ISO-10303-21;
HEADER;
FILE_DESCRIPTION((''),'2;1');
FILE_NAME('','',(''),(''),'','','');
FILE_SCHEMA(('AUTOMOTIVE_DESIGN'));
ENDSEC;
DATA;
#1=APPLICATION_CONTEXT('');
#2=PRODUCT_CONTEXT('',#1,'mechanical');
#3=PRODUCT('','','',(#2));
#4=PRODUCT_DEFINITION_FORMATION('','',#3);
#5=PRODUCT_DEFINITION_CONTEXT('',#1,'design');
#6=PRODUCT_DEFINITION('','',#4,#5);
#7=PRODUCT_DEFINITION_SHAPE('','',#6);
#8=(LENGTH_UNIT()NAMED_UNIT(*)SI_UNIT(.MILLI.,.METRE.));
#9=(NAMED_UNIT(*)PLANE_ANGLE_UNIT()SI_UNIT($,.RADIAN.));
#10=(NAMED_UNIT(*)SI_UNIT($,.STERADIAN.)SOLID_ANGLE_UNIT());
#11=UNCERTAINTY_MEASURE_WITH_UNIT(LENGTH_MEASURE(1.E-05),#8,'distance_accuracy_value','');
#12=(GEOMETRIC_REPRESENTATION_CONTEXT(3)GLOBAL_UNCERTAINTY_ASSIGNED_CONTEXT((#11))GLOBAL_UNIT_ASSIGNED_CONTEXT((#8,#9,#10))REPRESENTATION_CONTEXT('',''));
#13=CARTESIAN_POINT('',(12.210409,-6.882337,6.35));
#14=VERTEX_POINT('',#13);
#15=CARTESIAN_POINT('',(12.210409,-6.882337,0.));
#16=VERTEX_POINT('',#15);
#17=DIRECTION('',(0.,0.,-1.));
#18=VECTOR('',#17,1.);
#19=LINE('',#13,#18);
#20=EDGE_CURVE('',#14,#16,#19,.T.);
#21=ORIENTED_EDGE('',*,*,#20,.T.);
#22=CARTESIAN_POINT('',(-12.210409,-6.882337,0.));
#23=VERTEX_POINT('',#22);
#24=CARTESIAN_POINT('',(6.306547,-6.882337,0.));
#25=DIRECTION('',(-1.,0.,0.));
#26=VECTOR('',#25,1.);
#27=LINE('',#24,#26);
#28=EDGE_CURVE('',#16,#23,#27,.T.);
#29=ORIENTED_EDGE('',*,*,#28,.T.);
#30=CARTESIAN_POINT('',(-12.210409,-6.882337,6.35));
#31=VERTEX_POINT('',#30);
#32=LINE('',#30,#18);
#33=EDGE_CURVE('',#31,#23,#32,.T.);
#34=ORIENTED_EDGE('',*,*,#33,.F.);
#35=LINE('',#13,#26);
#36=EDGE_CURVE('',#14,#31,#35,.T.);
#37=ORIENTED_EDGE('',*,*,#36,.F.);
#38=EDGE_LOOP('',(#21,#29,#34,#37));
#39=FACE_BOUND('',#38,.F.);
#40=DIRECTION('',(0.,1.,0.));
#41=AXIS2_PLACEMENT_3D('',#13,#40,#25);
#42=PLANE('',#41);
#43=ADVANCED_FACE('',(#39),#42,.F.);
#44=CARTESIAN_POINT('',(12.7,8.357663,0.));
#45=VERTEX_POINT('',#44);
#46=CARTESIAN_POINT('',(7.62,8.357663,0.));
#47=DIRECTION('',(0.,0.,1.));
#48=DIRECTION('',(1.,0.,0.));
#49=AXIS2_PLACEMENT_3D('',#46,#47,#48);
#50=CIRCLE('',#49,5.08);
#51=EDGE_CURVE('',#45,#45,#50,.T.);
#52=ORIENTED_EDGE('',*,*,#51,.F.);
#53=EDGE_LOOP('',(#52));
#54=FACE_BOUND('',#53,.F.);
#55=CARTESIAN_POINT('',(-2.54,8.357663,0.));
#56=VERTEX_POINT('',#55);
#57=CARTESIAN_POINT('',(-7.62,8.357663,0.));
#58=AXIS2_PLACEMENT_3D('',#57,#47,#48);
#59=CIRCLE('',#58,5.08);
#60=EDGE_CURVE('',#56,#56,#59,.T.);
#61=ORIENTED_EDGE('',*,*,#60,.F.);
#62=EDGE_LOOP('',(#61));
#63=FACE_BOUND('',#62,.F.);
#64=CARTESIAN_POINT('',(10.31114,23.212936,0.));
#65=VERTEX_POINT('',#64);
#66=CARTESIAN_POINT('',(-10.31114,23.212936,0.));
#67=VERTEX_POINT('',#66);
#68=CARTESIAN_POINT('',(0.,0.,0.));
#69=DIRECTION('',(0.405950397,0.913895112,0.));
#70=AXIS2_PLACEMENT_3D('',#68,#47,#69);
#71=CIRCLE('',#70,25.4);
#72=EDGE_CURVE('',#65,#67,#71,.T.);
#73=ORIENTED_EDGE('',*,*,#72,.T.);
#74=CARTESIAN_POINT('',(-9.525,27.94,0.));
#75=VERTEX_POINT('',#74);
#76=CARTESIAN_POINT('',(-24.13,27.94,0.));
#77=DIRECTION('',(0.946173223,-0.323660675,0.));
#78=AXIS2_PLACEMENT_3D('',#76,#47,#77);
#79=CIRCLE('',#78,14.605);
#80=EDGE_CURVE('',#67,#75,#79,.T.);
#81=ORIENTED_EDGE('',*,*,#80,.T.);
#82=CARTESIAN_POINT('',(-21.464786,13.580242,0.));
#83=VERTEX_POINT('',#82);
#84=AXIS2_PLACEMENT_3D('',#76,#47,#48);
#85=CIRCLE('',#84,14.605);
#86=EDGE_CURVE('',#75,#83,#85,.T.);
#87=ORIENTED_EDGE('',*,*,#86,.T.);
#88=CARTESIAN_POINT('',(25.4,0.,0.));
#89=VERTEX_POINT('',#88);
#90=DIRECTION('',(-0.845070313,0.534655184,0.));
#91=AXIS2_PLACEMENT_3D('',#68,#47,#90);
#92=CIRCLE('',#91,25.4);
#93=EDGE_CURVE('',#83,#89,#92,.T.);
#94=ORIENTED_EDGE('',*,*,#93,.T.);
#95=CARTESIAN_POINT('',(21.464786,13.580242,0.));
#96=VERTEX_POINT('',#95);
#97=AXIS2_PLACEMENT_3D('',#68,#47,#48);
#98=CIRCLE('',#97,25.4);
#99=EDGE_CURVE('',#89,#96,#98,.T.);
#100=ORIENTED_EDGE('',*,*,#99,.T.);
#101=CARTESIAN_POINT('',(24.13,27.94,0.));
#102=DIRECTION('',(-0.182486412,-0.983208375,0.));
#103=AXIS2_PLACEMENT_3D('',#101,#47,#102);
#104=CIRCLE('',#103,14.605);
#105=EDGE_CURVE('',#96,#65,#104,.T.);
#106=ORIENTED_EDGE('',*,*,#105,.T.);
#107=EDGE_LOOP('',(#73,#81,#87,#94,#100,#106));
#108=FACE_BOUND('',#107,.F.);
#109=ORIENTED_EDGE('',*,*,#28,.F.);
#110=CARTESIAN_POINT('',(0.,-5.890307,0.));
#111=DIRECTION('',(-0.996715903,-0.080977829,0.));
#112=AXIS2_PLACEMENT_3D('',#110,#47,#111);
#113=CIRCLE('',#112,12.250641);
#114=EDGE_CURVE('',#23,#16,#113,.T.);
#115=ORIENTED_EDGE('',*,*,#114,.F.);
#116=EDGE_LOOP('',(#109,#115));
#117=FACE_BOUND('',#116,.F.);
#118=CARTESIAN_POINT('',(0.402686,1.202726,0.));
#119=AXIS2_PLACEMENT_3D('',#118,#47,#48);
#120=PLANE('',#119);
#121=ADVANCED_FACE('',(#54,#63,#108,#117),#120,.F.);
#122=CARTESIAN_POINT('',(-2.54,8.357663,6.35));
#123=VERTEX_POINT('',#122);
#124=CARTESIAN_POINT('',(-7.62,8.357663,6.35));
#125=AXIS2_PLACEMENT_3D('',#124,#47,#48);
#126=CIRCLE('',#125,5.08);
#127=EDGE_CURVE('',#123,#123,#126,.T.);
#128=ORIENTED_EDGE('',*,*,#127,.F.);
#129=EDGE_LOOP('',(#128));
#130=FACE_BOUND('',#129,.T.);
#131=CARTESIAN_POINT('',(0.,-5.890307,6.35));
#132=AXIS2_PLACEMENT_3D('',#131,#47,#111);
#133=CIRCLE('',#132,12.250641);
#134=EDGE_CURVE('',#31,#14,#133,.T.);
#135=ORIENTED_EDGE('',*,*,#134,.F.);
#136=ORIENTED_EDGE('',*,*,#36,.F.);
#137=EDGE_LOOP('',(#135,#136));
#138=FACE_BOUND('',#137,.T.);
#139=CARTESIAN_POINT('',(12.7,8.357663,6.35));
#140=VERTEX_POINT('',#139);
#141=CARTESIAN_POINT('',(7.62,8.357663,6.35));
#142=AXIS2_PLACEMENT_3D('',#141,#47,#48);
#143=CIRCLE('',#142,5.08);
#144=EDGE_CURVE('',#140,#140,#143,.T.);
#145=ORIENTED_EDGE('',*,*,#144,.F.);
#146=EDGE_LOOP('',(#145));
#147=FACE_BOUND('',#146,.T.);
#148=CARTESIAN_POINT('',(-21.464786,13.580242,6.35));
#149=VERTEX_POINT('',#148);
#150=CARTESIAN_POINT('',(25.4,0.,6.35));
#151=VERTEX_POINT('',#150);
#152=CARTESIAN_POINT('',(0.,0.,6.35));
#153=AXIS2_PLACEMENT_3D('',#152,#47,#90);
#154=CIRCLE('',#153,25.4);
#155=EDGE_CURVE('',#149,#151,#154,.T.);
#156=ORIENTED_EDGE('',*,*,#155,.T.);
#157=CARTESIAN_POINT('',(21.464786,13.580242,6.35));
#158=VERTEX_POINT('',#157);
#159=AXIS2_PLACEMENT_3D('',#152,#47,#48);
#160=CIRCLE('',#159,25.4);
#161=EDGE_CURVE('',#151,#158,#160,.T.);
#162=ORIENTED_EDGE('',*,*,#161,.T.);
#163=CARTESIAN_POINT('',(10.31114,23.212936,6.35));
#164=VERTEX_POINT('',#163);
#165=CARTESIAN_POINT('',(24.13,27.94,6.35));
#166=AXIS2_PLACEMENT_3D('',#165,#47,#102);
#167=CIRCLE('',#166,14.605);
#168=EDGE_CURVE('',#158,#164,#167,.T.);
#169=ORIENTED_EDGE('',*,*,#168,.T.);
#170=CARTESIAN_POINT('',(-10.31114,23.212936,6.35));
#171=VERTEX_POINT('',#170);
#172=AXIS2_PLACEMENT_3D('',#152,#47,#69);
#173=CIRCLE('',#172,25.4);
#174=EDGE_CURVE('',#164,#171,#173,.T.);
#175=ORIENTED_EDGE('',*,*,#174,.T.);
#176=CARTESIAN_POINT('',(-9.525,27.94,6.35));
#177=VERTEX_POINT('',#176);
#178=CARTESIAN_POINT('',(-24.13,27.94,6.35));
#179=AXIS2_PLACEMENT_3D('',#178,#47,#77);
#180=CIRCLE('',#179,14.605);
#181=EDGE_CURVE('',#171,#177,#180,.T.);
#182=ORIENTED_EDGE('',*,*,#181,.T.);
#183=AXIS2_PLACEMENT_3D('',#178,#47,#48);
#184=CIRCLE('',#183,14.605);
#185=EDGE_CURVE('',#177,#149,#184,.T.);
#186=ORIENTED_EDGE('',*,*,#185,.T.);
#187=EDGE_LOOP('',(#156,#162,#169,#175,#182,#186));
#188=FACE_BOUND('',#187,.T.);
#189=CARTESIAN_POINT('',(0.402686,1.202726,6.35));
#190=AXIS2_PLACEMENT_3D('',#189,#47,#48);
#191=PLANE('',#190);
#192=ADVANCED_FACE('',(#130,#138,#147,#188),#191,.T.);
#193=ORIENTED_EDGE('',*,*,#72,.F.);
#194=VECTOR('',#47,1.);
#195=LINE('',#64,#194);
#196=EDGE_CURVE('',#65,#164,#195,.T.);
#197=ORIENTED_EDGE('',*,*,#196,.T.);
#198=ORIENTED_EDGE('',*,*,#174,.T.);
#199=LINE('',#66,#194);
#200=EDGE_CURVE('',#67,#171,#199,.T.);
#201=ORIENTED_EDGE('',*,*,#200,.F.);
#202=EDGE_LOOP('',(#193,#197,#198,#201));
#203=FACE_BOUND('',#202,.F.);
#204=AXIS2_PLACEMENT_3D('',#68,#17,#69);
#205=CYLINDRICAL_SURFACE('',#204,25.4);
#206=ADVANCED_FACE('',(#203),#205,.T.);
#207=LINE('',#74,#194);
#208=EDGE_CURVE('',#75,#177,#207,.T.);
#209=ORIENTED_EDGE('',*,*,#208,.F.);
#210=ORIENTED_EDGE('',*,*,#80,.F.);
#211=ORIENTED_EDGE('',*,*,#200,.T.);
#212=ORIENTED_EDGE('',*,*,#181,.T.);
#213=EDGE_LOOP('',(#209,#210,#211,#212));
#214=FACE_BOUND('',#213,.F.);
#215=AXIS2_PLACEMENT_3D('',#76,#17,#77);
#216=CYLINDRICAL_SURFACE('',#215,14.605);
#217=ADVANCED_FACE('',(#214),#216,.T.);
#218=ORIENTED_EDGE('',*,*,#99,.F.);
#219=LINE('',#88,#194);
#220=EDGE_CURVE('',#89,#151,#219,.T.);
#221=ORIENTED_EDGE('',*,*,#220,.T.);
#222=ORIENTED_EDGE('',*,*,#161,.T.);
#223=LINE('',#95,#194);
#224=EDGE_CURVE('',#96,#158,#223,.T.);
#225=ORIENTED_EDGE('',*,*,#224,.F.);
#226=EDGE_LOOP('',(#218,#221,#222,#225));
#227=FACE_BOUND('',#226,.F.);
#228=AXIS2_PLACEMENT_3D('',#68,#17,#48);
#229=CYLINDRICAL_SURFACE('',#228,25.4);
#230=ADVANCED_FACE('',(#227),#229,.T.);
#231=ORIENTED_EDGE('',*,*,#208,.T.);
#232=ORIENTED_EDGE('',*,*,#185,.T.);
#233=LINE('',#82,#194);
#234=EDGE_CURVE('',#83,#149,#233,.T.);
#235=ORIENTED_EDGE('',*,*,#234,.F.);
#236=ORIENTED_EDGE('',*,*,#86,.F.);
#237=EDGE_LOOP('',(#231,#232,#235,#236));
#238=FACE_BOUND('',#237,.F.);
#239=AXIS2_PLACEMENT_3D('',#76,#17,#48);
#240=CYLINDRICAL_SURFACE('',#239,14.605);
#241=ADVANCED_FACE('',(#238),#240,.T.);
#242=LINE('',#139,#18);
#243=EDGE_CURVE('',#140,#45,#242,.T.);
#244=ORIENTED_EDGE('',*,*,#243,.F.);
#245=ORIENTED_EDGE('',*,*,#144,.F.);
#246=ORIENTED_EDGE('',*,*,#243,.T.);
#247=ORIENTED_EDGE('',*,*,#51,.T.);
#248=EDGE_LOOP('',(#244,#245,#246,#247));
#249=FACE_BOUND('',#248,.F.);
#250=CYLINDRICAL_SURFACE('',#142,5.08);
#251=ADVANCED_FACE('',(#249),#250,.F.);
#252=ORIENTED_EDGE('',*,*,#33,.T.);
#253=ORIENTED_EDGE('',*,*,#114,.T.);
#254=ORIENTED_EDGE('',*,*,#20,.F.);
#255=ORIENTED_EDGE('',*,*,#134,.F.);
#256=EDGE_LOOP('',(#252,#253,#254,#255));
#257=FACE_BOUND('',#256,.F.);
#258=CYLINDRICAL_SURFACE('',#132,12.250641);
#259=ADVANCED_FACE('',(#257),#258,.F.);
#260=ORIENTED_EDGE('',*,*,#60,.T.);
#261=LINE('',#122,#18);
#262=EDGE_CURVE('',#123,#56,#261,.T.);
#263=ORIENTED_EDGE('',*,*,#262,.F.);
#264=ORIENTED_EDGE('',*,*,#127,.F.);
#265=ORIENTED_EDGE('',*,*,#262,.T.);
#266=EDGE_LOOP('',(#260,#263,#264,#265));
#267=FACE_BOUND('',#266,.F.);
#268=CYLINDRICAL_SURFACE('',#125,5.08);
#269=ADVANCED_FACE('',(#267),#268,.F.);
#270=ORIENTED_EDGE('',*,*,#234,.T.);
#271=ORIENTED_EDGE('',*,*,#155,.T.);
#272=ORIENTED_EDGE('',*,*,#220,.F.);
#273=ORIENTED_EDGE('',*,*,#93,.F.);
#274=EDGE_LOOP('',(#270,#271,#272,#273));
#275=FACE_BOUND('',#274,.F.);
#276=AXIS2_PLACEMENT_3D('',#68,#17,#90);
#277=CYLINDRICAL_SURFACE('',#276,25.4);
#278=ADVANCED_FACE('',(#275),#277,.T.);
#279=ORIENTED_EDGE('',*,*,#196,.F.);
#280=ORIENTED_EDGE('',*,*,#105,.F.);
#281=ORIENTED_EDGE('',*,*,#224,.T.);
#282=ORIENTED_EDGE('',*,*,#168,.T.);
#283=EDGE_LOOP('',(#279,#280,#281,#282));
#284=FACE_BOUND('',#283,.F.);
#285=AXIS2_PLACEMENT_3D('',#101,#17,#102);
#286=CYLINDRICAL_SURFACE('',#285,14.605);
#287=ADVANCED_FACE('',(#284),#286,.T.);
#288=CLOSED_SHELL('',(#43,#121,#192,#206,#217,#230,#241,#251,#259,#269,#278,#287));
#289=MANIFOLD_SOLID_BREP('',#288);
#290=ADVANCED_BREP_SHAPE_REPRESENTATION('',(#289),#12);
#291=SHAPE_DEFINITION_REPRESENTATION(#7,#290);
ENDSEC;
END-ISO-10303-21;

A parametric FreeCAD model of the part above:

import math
import FreeCAD as App
import Part
import Sketcher
Q = App.Units.Quantity

doc = App.newDocument("Part")
body = doc.addObject("PartDesign::Body", "Body")

# Sketch on XY plane
sketch1 = body.newObject("Sketcher::SketchObject", "Sketch")
sketch1.AttachmentSupport = (doc.getObject("XY_Plane"), [""])
sketch1.MapMode = "FlatFace"
sketch1.addGeometry([
    Part.ArcOfCircle(Part.Circle(App.Vector(0, 0, 0), App.Vector(0, 0, 1), 25.4), math.radians(148), math.radians(360)),  # 0
    Part.ArcOfCircle(Part.Circle(App.Vector(0, 0, 0), App.Vector(0, 0, 1), 25.4), math.radians(0), math.radians(32)),  # 1
    Part.ArcOfCircle(Part.Circle(App.Vector(24.1, 27.9, 0), App.Vector(0, 0, 1), 14.6), math.radians(-101), math.radians(199)),  # 2
    Part.ArcOfCircle(Part.Circle(App.Vector(0, 0, 0), App.Vector(0, 0, 1), 25.4), math.radians(66), math.radians(114)),  # 3
    Part.ArcOfCircle(Part.Circle(App.Vector(-24.1, 27.9, 0), App.Vector(0, 0, 1), 14.6), math.radians(-18.88), math.radians(0)),  # 4
    Part.ArcOfCircle(Part.Circle(App.Vector(-24.1, 27.9, 0), App.Vector(0, 0, 1), 14.6), math.radians(0), math.radians(281)),  # 5
], False)
sketch1.addConstraint([
    Sketcher.Constraint("Tangent", 0, 2, 1, 1),
    Sketcher.Constraint("Coincident", 1, 2, 2, 1),
    Sketcher.Constraint("Coincident", 2, 2, 3, 1),
    Sketcher.Constraint("Coincident", 3, 2, 4, 1),
    Sketcher.Constraint("Tangent", 4, 2, 5, 1),
    Sketcher.Constraint("Coincident", 5, 2, 0, 1),
    Sketcher.Constraint("Coincident", 0, 3, -1, 1),
    Sketcher.Constraint("Coincident", 3, 3, -1, 1),
    Sketcher.Constraint("Equal", 0, 1),
    Sketcher.Constraint("Equal", 1, 3),
    Sketcher.Constraint("Equal", 2, 4),
    Sketcher.Constraint("Equal", 4, 5),
    Sketcher.Constraint("Symmetric", 2, 3, 4, 3, -2),
    Sketcher.Constraint("PointOnObject", 0, 2, -1),
    Sketcher.Constraint("Horizontal", 5, 3, 4, 2),
    Sketcher.Constraint("Radius", 0, Q("1 in")),
    Sketcher.Constraint("Radius", 2, Q("0.575 in")),
    Sketcher.Constraint("DistanceY", -1, 1, 2, 3, Q("1.1 in")),
    Sketcher.Constraint("DistanceX", 4, 3, 2, 3, Q("1.9 in")),
])
pad1 = body.newObject("PartDesign::Pad", "Pad")
pad1.Profile = sketch1
pad1.Length = Q("0.25 in")

# Sketch on XY plane
sketch2 = body.newObject("Sketcher::SketchObject", "Sketch001")
sketch2.AttachmentSupport = (doc.getObject("XY_Plane"), [""])
sketch2.MapMode = "FlatFace"
sketch2.AttachmentOffset = App.Placement(App.Vector(0, 0, 0.25 * 25.4), App.Rotation())
sketch2.addGeometry([
    Part.LineSegment(App.Vector(12, -7, 0), App.Vector(-12, -7, 0)),
    Part.ArcOfCircle(Part.Circle(App.Vector(0, -6, 0), App.Vector(0, 0, 1), 12), math.radians(-175), math.radians(-5)),
], False)
sketch2.addConstraint([
    Sketcher.Constraint("Coincident", 0, 1, 1, 2),
    Sketcher.Constraint("Coincident", 1, 1, 0, 2),
    Sketcher.Constraint("Horizontal", 0),
    Sketcher.Constraint("PointOnObject", 1, 3, -2),
    Sketcher.Constraint("Radius", 1, Q("12.250641 mm")),
    Sketcher.Constraint("DistanceX", 0, 2, 0, 1, Q("24.420818 mm")),
    Sketcher.Constraint("DistanceY", 1, 3, -1, 1, Q("5.890307 mm")),
])
pocket1 = body.newObject("PartDesign::Pocket", "Pocket")
pocket1.Profile = sketch2
pocket1.Length = Q("1 in")

# Sketch on XY plane
sketch3 = body.newObject("Sketcher::SketchObject", "Sketch002")
sketch3.AttachmentSupport = (doc.getObject("XY_Plane"), [""])
sketch3.MapMode = "FlatFace"
sketch3.AttachmentOffset = App.Placement(App.Vector(0, 0, 0.25 * 25.4), App.Rotation())
sketch3.addGeometry([
    Part.Circle(App.Vector(-8, 8, 0), App.Vector(0, 0, 1), 5),
    Part.Circle(App.Vector(8, 8, 0), App.Vector(0, 0, 1), 5),
], False)
sketch3.addConstraint([
    Sketcher.Constraint("Equal", 0, 1),
    Sketcher.Constraint("Symmetric", 0, 3, 1, 3, -2),
    Sketcher.Constraint("Diameter", 0, Q("0.4 in")),
    Sketcher.Constraint("DistanceX", 0, 3, -1, 1, Q("0.3 in")),
    Sketcher.Constraint("DistanceY", -1, 1, 0, 3, Q("8.357663 mm")),
])
pocket2 = body.newObject("PartDesign::Pocket", "Pocket001")
pocket2.Profile = sketch3
pocket2.Length = Q("1 in")

doc.recompute()
